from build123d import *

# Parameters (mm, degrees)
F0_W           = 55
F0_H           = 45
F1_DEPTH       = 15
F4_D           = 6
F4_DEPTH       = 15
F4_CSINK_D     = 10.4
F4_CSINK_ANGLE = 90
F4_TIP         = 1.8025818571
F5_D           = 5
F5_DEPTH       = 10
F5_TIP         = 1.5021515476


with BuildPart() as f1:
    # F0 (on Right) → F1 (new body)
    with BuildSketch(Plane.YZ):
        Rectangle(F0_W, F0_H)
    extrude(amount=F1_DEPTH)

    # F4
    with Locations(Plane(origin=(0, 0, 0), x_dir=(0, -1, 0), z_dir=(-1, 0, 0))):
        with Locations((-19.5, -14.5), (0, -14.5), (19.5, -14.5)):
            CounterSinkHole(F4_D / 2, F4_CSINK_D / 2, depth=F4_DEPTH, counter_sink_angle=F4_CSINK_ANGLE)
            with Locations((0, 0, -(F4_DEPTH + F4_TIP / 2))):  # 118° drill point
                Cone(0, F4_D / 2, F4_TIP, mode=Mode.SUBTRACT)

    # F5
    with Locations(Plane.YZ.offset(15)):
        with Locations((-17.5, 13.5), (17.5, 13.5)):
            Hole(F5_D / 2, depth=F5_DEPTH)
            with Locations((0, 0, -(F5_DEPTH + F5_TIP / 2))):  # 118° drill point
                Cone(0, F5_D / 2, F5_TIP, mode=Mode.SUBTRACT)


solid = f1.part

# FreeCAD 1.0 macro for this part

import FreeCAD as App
import Part
import Sketcher

V = App.Vector


def add_polygon(sketch, points):
    """Adds a closed chain of lines whose ends are joined by coincident constraints."""
    first, n = sketch.GeometryCount, len(points)
    for a, b in zip(points, points[1:] + points[:1]):
        sketch.addGeometry(Part.LineSegment(App.Vector(*a, 0), App.Vector(*b, 0)), False)
    for i in range(n):
        sketch.addConstraint(Sketcher.Constraint("Coincident", first + i, 2, first + (i + 1) % n, 1))

doc = App.newDocument("Part")
body = doc.addObject("PartDesign::Body", "Body")

# Sketch on YZ plane
sketch1 = body.newObject("Sketcher::SketchObject", "Sketch")
sketch1.AttachmentSupport = (doc.getObject("YZ_Plane"), [""])
sketch1.MapMode = "FlatFace"
add_polygon(sketch1, [(-28, 22), (-28, -22), (28, -22), (28, 22)])  # lines 0-3
sketch1.addConstraint(Sketcher.Constraint("Vertical", 0))
sketch1.addConstraint(Sketcher.Constraint("Horizontal", 1))
sketch1.addConstraint(Sketcher.Constraint("Vertical", 2))
sketch1.addConstraint(Sketcher.Constraint("Horizontal", 3))
sketch1.addConstraint(Sketcher.Constraint("Symmetric", 0, 2, 2, 2, -1, 1))
sketch1.addConstraint(Sketcher.Constraint("DistanceX", 1, 1, 1, 2, 55.0))
sketch1.addConstraint(Sketcher.Constraint("DistanceY", 0, 2, 0, 1, 45.0))
pad1 = body.newObject("PartDesign::Pad", "Pad")
pad1.Profile = sketch1
pad1.Length = 15

# Sketch on YZ plane
sketch2 = body.newObject("Sketcher::SketchObject", "Sketch001")
sketch2.AttachmentSupport = (doc.getObject("YZ_Plane"), [""])
sketch2.MapMode = "FlatFace"
sketch2.addGeometry(Part.Circle(V(19.5, -14.5, 0), V(0, 0, 1), 3), False)
sketch2.addGeometry(Part.Circle(V(0, -14.5, 0), V(0, 0, 1), 3), False)
sketch2.addGeometry(Part.Circle(V(-19.5, -14.5, 0), V(0, 0, 1), 3), False)
sketch2.addConstraint(Sketcher.Constraint("Equal", 0, 1))
sketch2.addConstraint(Sketcher.Constraint("Equal", 1, 2))
sketch2.addConstraint(Sketcher.Constraint("Symmetric", 0, 3, 2, 3, -2))
sketch2.addConstraint(Sketcher.Constraint("PointOnObject", 1, 3, -2))
sketch2.addConstraint(Sketcher.Constraint("Horizontal", 0, 3, 1, 3))
sketch2.addConstraint(Sketcher.Constraint("Diameter", 0, 6.0))
sketch2.addConstraint(Sketcher.Constraint("DistanceX", 2, 3, 0, 3, 39.0))
sketch2.addConstraint(Sketcher.Constraint("DistanceY", 0, 3, -1, 1, 14.5))
doc.recompute()
hole = body.newObject("PartDesign::Hole", "Hole")
hole.Profile = sketch2
hole.ThreadType = "None"
hole.Diameter = 6
hole.DepthType = "Dimension"
hole.Depth = 15
hole.DrillPoint = "Angled"
hole.DrillPointAngle = 118
hole.HoleCutType = "Countersink"
hole.HoleCutDiameter = 10.4
hole.HoleCutCountersinkAngle = 90
hole.Reversed = True

# Sketch on YZ plane
sketch3 = body.newObject("Sketcher::SketchObject", "Sketch002")
sketch3.AttachmentSupport = (doc.getObject("YZ_Plane"), [""])
sketch3.MapMode = "FlatFace"
sketch3.AttachmentOffset = App.Placement(V(0, 0, 15), App.Rotation())
sketch3.addGeometry(Part.Circle(V(-17.5, 13.5, 0), V(0, 0, 1), 2.5), False)
sketch3.addGeometry(Part.Circle(V(17.5, 13.5, 0), V(0, 0, 1), 2.5), False)
sketch3.addConstraint(Sketcher.Constraint("Equal", 0, 1))
sketch3.addConstraint(Sketcher.Constraint("Symmetric", 0, 3, 1, 3, -2))
sketch3.addConstraint(Sketcher.Constraint("Diameter", 0, 5.0))
sketch3.addConstraint(Sketcher.Constraint("DistanceX", 0, 3, 1, 3, 35.0))
sketch3.addConstraint(Sketcher.Constraint("DistanceY", -1, 1, 0, 3, 13.5))
doc.recompute()
hole2 = body.newObject("PartDesign::Hole", "Hole001")
hole2.Profile = sketch3
hole2.ThreadType = "None"
hole2.Diameter = 5
hole2.DepthType = "Dimension"
hole2.Depth = 10
hole2.DrillPoint = "Angled"
hole2.DrillPointAngle = 118

doc.recompute()
